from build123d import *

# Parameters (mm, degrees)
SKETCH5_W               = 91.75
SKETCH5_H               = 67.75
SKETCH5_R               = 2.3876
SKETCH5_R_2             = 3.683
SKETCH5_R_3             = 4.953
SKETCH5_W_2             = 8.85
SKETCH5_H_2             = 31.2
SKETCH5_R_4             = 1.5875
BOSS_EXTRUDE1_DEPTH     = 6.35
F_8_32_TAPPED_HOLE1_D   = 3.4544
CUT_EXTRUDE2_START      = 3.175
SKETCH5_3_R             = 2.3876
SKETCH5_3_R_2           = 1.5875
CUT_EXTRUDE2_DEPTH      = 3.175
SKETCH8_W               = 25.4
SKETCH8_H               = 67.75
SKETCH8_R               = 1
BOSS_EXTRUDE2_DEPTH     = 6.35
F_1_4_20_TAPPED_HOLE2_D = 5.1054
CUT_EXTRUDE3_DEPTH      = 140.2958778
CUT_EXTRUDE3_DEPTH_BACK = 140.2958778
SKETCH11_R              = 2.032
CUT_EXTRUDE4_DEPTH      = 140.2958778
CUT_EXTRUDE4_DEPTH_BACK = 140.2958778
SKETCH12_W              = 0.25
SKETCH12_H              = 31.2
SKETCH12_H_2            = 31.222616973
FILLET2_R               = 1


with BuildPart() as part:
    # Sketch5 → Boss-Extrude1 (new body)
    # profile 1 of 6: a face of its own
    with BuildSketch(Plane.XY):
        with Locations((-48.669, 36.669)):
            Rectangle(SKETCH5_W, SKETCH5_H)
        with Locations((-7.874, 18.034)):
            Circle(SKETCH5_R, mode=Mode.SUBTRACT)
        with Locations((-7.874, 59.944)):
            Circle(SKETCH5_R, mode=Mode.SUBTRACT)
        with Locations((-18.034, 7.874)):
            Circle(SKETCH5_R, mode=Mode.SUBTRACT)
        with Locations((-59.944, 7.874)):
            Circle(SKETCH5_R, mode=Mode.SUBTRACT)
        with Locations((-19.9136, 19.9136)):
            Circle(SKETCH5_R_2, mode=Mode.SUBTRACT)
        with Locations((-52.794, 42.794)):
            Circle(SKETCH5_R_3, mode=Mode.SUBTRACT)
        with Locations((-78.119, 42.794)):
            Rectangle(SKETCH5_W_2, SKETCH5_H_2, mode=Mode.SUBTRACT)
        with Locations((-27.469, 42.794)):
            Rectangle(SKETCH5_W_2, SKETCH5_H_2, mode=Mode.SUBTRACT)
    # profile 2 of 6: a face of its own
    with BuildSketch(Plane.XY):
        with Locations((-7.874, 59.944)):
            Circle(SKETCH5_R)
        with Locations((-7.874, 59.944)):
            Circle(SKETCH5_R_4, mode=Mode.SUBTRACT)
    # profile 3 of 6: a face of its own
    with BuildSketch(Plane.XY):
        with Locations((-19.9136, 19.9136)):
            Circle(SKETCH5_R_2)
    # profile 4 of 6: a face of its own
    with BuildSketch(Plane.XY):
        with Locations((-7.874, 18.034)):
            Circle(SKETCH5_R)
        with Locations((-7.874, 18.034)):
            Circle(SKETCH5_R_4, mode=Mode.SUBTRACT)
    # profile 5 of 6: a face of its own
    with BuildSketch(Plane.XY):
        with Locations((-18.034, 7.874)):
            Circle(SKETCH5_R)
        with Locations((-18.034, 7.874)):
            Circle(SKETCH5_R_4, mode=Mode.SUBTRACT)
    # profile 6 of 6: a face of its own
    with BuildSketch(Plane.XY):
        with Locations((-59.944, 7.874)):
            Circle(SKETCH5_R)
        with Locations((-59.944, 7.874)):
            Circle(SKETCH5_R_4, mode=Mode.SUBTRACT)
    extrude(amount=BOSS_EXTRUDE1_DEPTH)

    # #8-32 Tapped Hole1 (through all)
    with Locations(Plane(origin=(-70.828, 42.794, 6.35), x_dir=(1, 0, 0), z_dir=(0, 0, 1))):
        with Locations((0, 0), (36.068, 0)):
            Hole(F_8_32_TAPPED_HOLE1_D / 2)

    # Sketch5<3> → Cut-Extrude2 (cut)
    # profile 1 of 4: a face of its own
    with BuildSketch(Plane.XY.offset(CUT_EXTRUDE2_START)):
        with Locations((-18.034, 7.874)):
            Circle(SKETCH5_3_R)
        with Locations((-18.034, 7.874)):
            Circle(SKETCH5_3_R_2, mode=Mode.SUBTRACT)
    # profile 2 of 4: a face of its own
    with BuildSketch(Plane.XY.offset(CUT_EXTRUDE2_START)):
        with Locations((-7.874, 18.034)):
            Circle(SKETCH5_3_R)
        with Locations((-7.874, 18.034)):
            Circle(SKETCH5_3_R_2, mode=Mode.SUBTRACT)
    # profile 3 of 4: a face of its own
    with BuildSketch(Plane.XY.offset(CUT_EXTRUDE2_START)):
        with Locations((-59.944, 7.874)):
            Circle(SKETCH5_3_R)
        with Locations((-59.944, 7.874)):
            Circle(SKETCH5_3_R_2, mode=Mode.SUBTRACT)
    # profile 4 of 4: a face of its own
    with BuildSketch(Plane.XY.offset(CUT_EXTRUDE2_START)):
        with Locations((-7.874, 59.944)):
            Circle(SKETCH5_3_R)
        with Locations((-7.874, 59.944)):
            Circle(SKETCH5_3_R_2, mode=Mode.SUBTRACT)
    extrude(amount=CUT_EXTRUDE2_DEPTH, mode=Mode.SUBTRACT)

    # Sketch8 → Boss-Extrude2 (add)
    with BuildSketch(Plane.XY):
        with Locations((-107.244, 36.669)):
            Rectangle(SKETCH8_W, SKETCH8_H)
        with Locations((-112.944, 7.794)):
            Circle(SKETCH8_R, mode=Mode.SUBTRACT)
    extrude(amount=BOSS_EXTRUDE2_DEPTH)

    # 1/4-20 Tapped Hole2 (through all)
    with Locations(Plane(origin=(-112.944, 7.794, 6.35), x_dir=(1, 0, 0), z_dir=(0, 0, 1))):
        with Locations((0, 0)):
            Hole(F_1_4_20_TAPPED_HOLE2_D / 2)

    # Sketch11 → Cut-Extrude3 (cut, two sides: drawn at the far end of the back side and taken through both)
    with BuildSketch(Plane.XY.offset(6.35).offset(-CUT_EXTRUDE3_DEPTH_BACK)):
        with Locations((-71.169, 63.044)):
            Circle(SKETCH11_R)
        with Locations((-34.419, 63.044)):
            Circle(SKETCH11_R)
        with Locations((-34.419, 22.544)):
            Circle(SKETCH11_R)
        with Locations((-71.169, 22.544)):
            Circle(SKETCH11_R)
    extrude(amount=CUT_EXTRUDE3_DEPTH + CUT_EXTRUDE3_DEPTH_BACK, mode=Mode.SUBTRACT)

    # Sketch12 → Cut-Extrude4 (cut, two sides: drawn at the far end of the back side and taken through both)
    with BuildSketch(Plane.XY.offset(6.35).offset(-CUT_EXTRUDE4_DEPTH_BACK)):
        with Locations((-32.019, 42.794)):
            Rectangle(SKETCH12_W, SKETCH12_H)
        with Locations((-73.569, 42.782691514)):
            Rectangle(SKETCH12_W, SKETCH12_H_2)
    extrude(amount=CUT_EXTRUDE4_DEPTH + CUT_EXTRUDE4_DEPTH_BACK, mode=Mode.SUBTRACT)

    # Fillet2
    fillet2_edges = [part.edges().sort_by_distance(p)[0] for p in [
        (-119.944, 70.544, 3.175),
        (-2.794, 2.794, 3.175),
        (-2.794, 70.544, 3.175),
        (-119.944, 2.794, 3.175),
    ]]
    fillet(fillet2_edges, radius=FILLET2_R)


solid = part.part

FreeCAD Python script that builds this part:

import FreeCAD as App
import Part
import Sketcher
Q = App.Units.Quantity


def edges_at(feature, points):
    """Names of the edges that pass closest to the given points."""
    edges = feature.Shape.Edges
    near = lambda p: min(range(len(edges)), key=lambda i: edges[i].distToShape(Part.Vertex(*p))[0])
    return sorted({f"Edge{near(p) + 1}" for p in points})

doc = App.newDocument("Part")
body = doc.addObject("PartDesign::Body", "Body")

sketch1 = body.newObject("Sketcher::SketchObject", "Sketch")
sketch1.AttachmentSupport = (doc.getObject("XY_Plane"), [""])
sketch1.MapMode = "FlatFace"
sketch1.addGeometry(Part.LineSegment(App.Vector(-94.544, 70.544, 0), App.Vector(-94.544, 2.794, 0)), False)
sketch1.addGeometry(Part.LineSegment(App.Vector(-94.544, 2.794, 0), App.Vector(-2.794, 2.794, 0)), False)
sketch1.addGeometry(Part.LineSegment(App.Vector(-2.794, 2.794, 0), App.Vector(-2.794, 70.544, 0)), False)
sketch1.addGeometry(Part.LineSegment(App.Vector(-2.794, 70.544, 0), App.Vector(-94.544, 70.544, 0)), False)
sketch1.addGeometry(Part.LineSegment(App.Vector(-73.694, 27.194, 0), App.Vector(-82.544, 27.194, 0)), False)
sketch1.addGeometry(Part.LineSegment(App.Vector(-82.544, 27.194, 0), App.Vector(-82.544, 58.394, 0)), False)
sketch1.addGeometry(Part.LineSegment(App.Vector(-82.544, 58.394, 0), App.Vector(-73.694, 58.394, 0)), False)
sketch1.addGeometry(Part.LineSegment(App.Vector(-73.694, 58.394, 0), App.Vector(-73.694, 27.194, 0)), False)
sketch1.addGeometry(Part.Circle(App.Vector(-52.794, 42.794, 0), App.Vector(0, 0, 1), 4.953), False)
sketch1.addGeometry(Part.LineSegment(App.Vector(-23.044, 27.194, 0), App.Vector(-31.894, 27.194, 0)), False)
sketch1.addGeometry(Part.LineSegment(App.Vector(-31.894, 27.194, 0), App.Vector(-31.894, 58.394, 0)), False)
sketch1.addGeometry(Part.LineSegment(App.Vector(-31.894, 58.394, 0), App.Vector(-23.044, 58.394, 0)), False)
sketch1.addGeometry(Part.LineSegment(App.Vector(-23.044, 58.394, 0), App.Vector(-23.044, 27.194, 0)), False)
sketch1.addGeometry(Part.Circle(App.Vector(-59.944, 7.874, 0), App.Vector(0, 0, 1), 1.5875), False)
sketch1.addGeometry(Part.Circle(App.Vector(-18.034, 7.874, 0), App.Vector(0, 0, 1), 1.5875), False)
sketch1.addGeometry(Part.Circle(App.Vector(-7.874, 18.034, 0), App.Vector(0, 0, 1), 1.5875), False)
sketch1.addGeometry(Part.Circle(App.Vector(-7.874, 59.944, 0), App.Vector(0, 0, 1), 1.5875), False)
sketch1.addConstraint(Sketcher.Constraint("Coincident", 0, 2, 1, 1))
sketch1.addConstraint(Sketcher.Constraint("Coincident", 1, 2, 2, 1))
sketch1.addConstraint(Sketcher.Constraint("Coincident", 2, 2, 3, 1))
sketch1.addConstraint(Sketcher.Constraint("Coincident", 3, 2, 0, 1))
sketch1.addConstraint(Sketcher.Constraint("Coincident", 4, 2, 5, 1))
sketch1.addConstraint(Sketcher.Constraint("Coincident", 5, 2, 6, 1))
sketch1.addConstraint(Sketcher.Constraint("Coincident", 6, 2, 7, 1))
sketch1.addConstraint(Sketcher.Constraint("Coincident", 7, 2, 4, 1))
sketch1.addConstraint(Sketcher.Constraint("Coincident", 9, 2, 10, 1))
sketch1.addConstraint(Sketcher.Constraint("Coincident", 10, 2, 11, 1))
sketch1.addConstraint(Sketcher.Constraint("Coincident", 11, 2, 12, 1))
sketch1.addConstraint(Sketcher.Constraint("Coincident", 12, 2, 9, 1))
sketch1.addConstraint(Sketcher.Constraint("Vertical", 0))
sketch1.addConstraint(Sketcher.Constraint("Horizontal", 1))
sketch1.addConstraint(Sketcher.Constraint("Vertical", 2))
sketch1.addConstraint(Sketcher.Constraint("Horizontal", 3))
sketch1.addConstraint(Sketcher.Constraint("Horizontal", 4))
sketch1.addConstraint(Sketcher.Constraint("Vertical", 5))
sketch1.addConstraint(Sketcher.Constraint("Horizontal", 6))
sketch1.addConstraint(Sketcher.Constraint("Vertical", 7))
sketch1.addConstraint(Sketcher.Constraint("Horizontal", 9))
sketch1.addConstraint(Sketcher.Constraint("Vertical", 10))
sketch1.addConstraint(Sketcher.Constraint("Horizontal", 11))
sketch1.addConstraint(Sketcher.Constraint("Vertical", 12))
sketch1.addConstraint(Sketcher.Constraint("Equal", 13, 14))
sketch1.addConstraint(Sketcher.Constraint("Equal", 14, 15))
sketch1.addConstraint(Sketcher.Constraint("Equal", 15, 16))
sketch1.addConstraint(Sketcher.Constraint("Horizontal", 13, 3, 14, 3))
sketch1.addConstraint(Sketcher.Constraint("Horizontal", 7, 2, 9, 2))
sketch1.addConstraint(Sketcher.Constraint("Horizontal", 6, 2, 10, 2))
sketch1.addConstraint(Sketcher.Constraint("Vertical", 15, 3, 16, 3))
sketch1.addConstraint(Sketcher.Constraint("Equal", 6, 9))
sketch1.addConstraint(Sketcher.Constraint("Diameter", 8, Q("0.39 in")))
sketch1.addConstraint(Sketcher.Constraint("Diameter", 13, Q("0.125 in")))
sketch1.addConstraint(Sketcher.Constraint("DistanceX", 14, 3, 15, 3, Q("0.4 in")))
sketch1.addConstraint(Sketcher.Constraint("DistanceY", 14, 3, 15, 3, Q("0.4 in")))
sketch1.addConstraint(Sketcher.Constraint("DistanceY", 0, 2, 13, 3, Q("0.2 in")))
sketch1.addConstraint(Sketcher.Constraint("DistanceX", 14, 3, 1, 2, Q("0.6 in")))
sketch1.addConstraint(Sketcher.Constraint("DistanceX", 13, 3, -1, 1, Q("2.36 in")))
sketch1.addConstraint(Sketcher.Constraint("DistanceY", -1, 1, 13, 3, Q("0.31 in")))
sketch1.addConstraint(Sketcher.Constraint("DistanceX", 14, 3, -1, 1, Q("0.71 in")))
sketch1.addConstraint(Sketcher.Constraint("DistanceY", -1, 1, 16, 3, Q("2.36 in")))
sketch1.addConstraint(Sketcher.Constraint("DistanceX", 1, 1, 1, 2, Q("91.75 mm")))
sketch1.addConstraint(Sketcher.Constraint("DistanceX", 4, 2, 4, 1, Q("8.85 mm")))
sketch1.addConstraint(Sketcher.Constraint("DistanceY", 0, 2, 0, 1, Q("67.75 mm")))
sketch1.addConstraint(Sketcher.Constraint("DistanceY", 5, 1, 5, 2, Q("31.2 mm")))
sketch1.addConstraint(Sketcher.Constraint("DistanceX", 8, 3, -1, 1, Q("52.794 mm")))
sketch1.addConstraint(Sketcher.Constraint("DistanceY", -1, 1, 8, 3, Q("42.794 mm")))
sketch1.addConstraint(Sketcher.Constraint("DistanceX", 4, 2, -1, 1, Q("82.544 mm")))
sketch1.addConstraint(Sketcher.Constraint("DistanceY", -1, 1, 4, 2, Q("27.194 mm")))
sketch1.addConstraint(Sketcher.Constraint("DistanceX", 9, 2, -1, 1, Q("31.894 mm")))
pad1 = body.newObject("PartDesign::Pad", "Pad")
pad1.Profile = sketch1
pad1.Length = Q("0.25 in")

sketch2 = body.newObject("Sketcher::SketchObject", "Sketch001")
sketch2.AttachmentSupport = (doc.getObject("XY_Plane"), [""])
sketch2.MapMode = "FlatFace"
sketch2.AttachmentOffset = App.Placement(App.Vector(0, 0, 0.25 * 25.4), App.Rotation())
sketch2.addGeometry(Part.Circle(App.Vector(-70.828, 42.794, 0), App.Vector(0, 0, 1), 1.7272), False)
sketch2.addGeometry(Part.Circle(App.Vector(-34.76, 42.794, 0), App.Vector(0, 0, 1), 1.7272), False)
sketch2.addConstraint(Sketcher.Constraint("Equal", 0, 1))
sketch2.addConstraint(Sketcher.Constraint("Horizontal", 0, 3, 1, 3))
sketch2.addConstraint(Sketcher.Constraint("Diameter", 0, Q("0.136 in")))
sketch2.addConstraint(Sketcher.Constraint("DistanceX", 0, 3, 1, 3, Q("1.42 in")))
sketch2.addConstraint(Sketcher.Constraint("DistanceX", 0, 3, -1, 1, Q("70.828 mm")))
sketch2.addConstraint(Sketcher.Constraint("DistanceY", -1, 1, 0, 3, Q("42.794 mm")))
doc.recompute()
hole = body.newObject("PartDesign::Hole", "Hole")
hole.Profile = sketch2
hole.ThreadType = "None"
hole.Diameter = Q("0.136 in")
hole.DepthType = "ThroughAll"

sketch3 = body.newObject("Sketcher::SketchObject", "Sketch002")
sketch3.AttachmentSupport = (doc.getObject("XY_Plane"), [""])
sketch3.MapMode = "FlatFace"
sketch3.AttachmentOffset = App.Placement(App.Vector(0, 0, 0.125 * 25.4), App.Rotation())
sketch3.addGeometry(Part.Circle(App.Vector(-18.034, 7.874, 0), App.Vector(0, 0, 1), 2.3876), False)
sketch3.addGeometry(Part.Circle(App.Vector(-18.034, 7.874, 0), App.Vector(0, 0, 1), 1.5875), False)
sketch3.addGeometry(Part.Circle(App.Vector(-7.874, 18.034, 0), App.Vector(0, 0, 1), 2.3876), False)
sketch3.addGeometry(Part.Circle(App.Vector(-7.874, 18.034, 0), App.Vector(0, 0, 1), 1.5875), False)
sketch3.addGeometry(Part.Circle(App.Vector(-59.944, 7.874, 0), App.Vector(0, 0, 1), 2.3876), False)
sketch3.addGeometry(Part.Circle(App.Vector(-59.944, 7.874, 0), App.Vector(0, 0, 1), 1.5875), False)
sketch3.addGeometry(Part.Circle(App.Vector(-7.874, 59.944, 0), App.Vector(0, 0, 1), 2.3876), False)
sketch3.addGeometry(Part.Circle(App.Vector(-7.874, 59.944, 0), App.Vector(0, 0, 1), 1.5875), False)
sketch3.addConstraint(Sketcher.Constraint("Coincident", 1, 3, 0, 3))
sketch3.addConstraint(Sketcher.Constraint("Coincident", 3, 3, 2, 3))
sketch3.addConstraint(Sketcher.Constraint("Coincident", 5, 3, 4, 3))
sketch3.addConstraint(Sketcher.Constraint("Coincident", 7, 3, 6, 3))
sketch3.addConstraint(Sketcher.Constraint("Equal", 0, 2))
sketch3.addConstraint(Sketcher.Constraint("Equal", 1, 3))
sketch3.addConstraint(Sketcher.Constraint("Equal", 2, 4))
sketch3.addConstraint(Sketcher.Constraint("Equal", 3, 5))
sketch3.addConstraint(Sketcher.Constraint("Equal", 4, 6))
sketch3.addConstraint(Sketcher.Constraint("Equal", 5, 7))
sketch3.addConstraint(Sketcher.Constraint("Horizontal", 1, 3, 4, 3))
sketch3.addConstraint(Sketcher.Constraint("Vertical", 3, 3, 6, 3))
sketch3.addConstraint(Sketcher.Constraint("Diameter", 0, Q("0.188 in")))
sketch3.addConstraint(Sketcher.Constraint("Diameter", 1, Q("0.125 in")))
sketch3.addConstraint(Sketcher.Constraint("DistanceX", 0, 3, 2, 3, Q("0.4 in")))
sketch3.addConstraint(Sketcher.Constraint("DistanceY", 0, 3, 2, 3, Q("0.4 in")))
sketch3.addConstraint(Sketcher.Constraint("DistanceX", 0, 3, -1, 1, Q("0.71 in")))
sketch3.addConstraint(Sketcher.Constraint("DistanceY", -1, 1, 0, 3, Q("0.31 in")))
sketch3.addConstraint(Sketcher.Constraint("DistanceX", 4, 3, -1, 1, Q("2.36 in")))
sketch3.addConstraint(Sketcher.Constraint("DistanceY", -1, 1, 6, 3, Q("2.36 in")))
pocket1 = body.newObject("PartDesign::Pocket", "Pocket")
pocket1.Profile = sketch3
pocket1.Length = Q("0.125 in")
pocket1.Reversed = True

sketch4 = body.newObject("Sketcher::SketchObject", "Sketch003")
sketch4.AttachmentSupport = (doc.getObject("XY_Plane"), [""])
sketch4.MapMode = "FlatFace"
sketch4.addGeometry(Part.LineSegment(App.Vector(-119.944, 70.544, 0), App.Vector(-119.944, 2.794, 0)), False)
sketch4.addGeometry(Part.LineSegment(App.Vector(-119.944, 2.794, 0), App.Vector(-94.544, 2.794, 0)), False)
sketch4.addGeometry(Part.LineSegment(App.Vector(-94.544, 2.794, 0), App.Vector(-94.544, 70.544, 0)), False)
sketch4.addGeometry(Part.LineSegment(App.Vector(-94.544, 70.544, 0), App.Vector(-119.944, 70.544, 0)), False)
sketch4.addGeometry(Part.Circle(App.Vector(-112.944, 7.794, 0), App.Vector(0, 0, 1), 1), False)
sketch4.addConstraint(Sketcher.Constraint("Coincident", 0, 2, 1, 1))
sketch4.addConstraint(Sketcher.Constraint("Coincident", 1, 2, 2, 1))
sketch4.addConstraint(Sketcher.Constraint("Coincident", 2, 2, 3, 1))
sketch4.addConstraint(Sketcher.Constraint("Coincident", 3, 2, 0, 1))
sketch4.addConstraint(Sketcher.Constraint("Vertical", 0))
sketch4.addConstraint(Sketcher.Constraint("Horizontal", 1))
sketch4.addConstraint(Sketcher.Constraint("Vertical", 2))
sketch4.addConstraint(Sketcher.Constraint("Horizontal", 3))
sketch4.addConstraint(Sketcher.Constraint("DistanceX", 1, 1, 1, 2, Q("1 in")))
sketch4.addConstraint(Sketcher.Constraint("Diameter", 4, Q("2 mm")))
sketch4.addConstraint(Sketcher.Constraint("DistanceY", -1, 1, 0, 2, Q("0.11 in")))
sketch4.addConstraint(Sketcher.Constraint("DistanceY", 0, 2, 0, 1, Q("67.75 mm")))
sketch4.addConstraint(Sketcher.Constraint("DistanceX", 4, 3, -1, 1, Q("112.944 mm")))
sketch4.addConstraint(Sketcher.Constraint("DistanceY", -1, 1, 4, 3, Q("7.794 mm")))
sketch4.addConstraint(Sketcher.Constraint("DistanceX", 0, 2, -1, 1, Q("119.944 mm")))
pad2 = body.newObject("PartDesign::Pad", "Pad001")
pad2.Profile = sketch4
pad2.Length = Q("0.25 in")

sketch5 = body.newObject("Sketcher::SketchObject", "Sketch004")
sketch5.AttachmentSupport = (doc.getObject("XY_Plane"), [""])
sketch5.MapMode = "FlatFace"
sketch5.AttachmentOffset = App.Placement(App.Vector(0, 0, 0.25 * 25.4), App.Rotation())
sketch5.addGeometry(Part.Circle(App.Vector(-112.944, 7.794, 0), App.Vector(0, 0, 1), 2.5527), False)
sketch5.addConstraint(Sketcher.Constraint("Diameter", 0, Q("0.201 in")))
sketch5.addConstraint(Sketcher.Constraint("DistanceX", 0, 3, -1, 1, Q("112.944 mm")))
sketch5.addConstraint(Sketcher.Constraint("DistanceY", -1, 1, 0, 3, Q("7.794 mm")))
doc.recompute()
hole2 = body.newObject("PartDesign::Hole", "Hole001")
hole2.Profile = sketch5
hole2.ThreadType = "None"
hole2.Diameter = Q("0.201 in")
hole2.DepthType = "ThroughAll"

sketch6 = body.newObject("Sketcher::SketchObject", "Sketch005")
sketch6.AttachmentSupport = (doc.getObject("XY_Plane"), [""])
sketch6.MapMode = "FlatFace"
sketch6.AttachmentOffset = App.Placement(App.Vector(0, 0, 0.25 * 25.4), App.Rotation())
sketch6.addGeometry(Part.Circle(App.Vector(-71.169, 63.044, 0), App.Vector(0, 0, 1), 2.032), False)
sketch6.addGeometry(Part.Circle(App.Vector(-34.419, 63.044, 0), App.Vector(0, 0, 1), 2.032), False)
sketch6.addGeometry(Part.Circle(App.Vector(-34.419, 22.544, 0), App.Vector(0, 0, 1), 2.032), False)
sketch6.addGeometry(Part.Circle(App.Vector(-71.169, 22.544, 0), App.Vector(0, 0, 1), 2.032), False)
sketch6.addConstraint(Sketcher.Constraint("Equal", 0, 1))
sketch6.addConstraint(Sketcher.Constraint("Equal", 1, 2))
sketch6.addConstraint(Sketcher.Constraint("Equal", 2, 3))
sketch6.addConstraint(Sketcher.Constraint("Horizontal", 0, 3, 1, 3))
sketch6.addConstraint(Sketcher.Constraint("Horizontal", 2, 3, 3, 3))
sketch6.addConstraint(Sketcher.Constraint("Vertical", 1, 3, 2, 3))
sketch6.addConstraint(Sketcher.Constraint("Vertical", 0, 3, 3, 3))
sketch6.addConstraint(Sketcher.Constraint("Diameter", 0, Q("0.16 in")))
sketch6.addConstraint(Sketcher.Constraint("DistanceX", 0, 3, -1, 1, Q("71.169 mm")))
sketch6.addConstraint(Sketcher.Constraint("DistanceY", -1, 1, 0, 3, Q("63.044 mm")))
sketch6.addConstraint(Sketcher.Constraint("DistanceX", 1, 3, -1, 1, Q("34.419 mm")))
sketch6.addConstraint(Sketcher.Constraint("DistanceY", -1, 1, 2, 3, Q("22.544 mm")))
pocket2 = body.newObject("PartDesign::Pocket", "Pocket001")
pocket2.Profile = sketch6
pocket2.Type = "ThroughAll"
pocket2.Midplane = True

sketch7 = body.newObject("Sketcher::SketchObject", "Sketch006")
sketch7.AttachmentSupport = (doc.getObject("XY_Plane"), [""])
sketch7.MapMode = "FlatFace"
sketch7.AttachmentOffset = App.Placement(App.Vector(0, 0, 0.25 * 25.4), App.Rotation())
sketch7.addGeometry(Part.LineSegment(App.Vector(-32.144, 58.394, 0), App.Vector(-32.144, 27.194, 0)), False)
sketch7.addGeometry(Part.LineSegment(App.Vector(-32.144, 27.194, 0), App.Vector(-31.894, 27.194, 0)), False)
sketch7.addGeometry(Part.LineSegment(App.Vector(-31.894, 27.194, 0), App.Vector(-31.894, 58.394, 0)), False)
sketch7.addGeometry(Part.LineSegment(App.Vector(-31.894, 58.394, 0), App.Vector(-32.144, 58.394, 0)), False)
sketch7.addGeometry(Part.LineSegment(App.Vector(-73.694, 58.394, 0), App.Vector(-73.694, 27.171383, 0)), False)
sketch7.addGeometry(Part.LineSegment(App.Vector(-73.694, 27.171383, 0), App.Vector(-73.444, 27.171383, 0)), False)
sketch7.addGeometry(Part.LineSegment(App.Vector(-73.444, 27.171383, 0), App.Vector(-73.444, 58.394, 0)), False)
sketch7.addGeometry(Part.LineSegment(App.Vector(-73.444, 58.394, 0), App.Vector(-73.694, 58.394, 0)), False)
sketch7.addConstraint(Sketcher.Constraint("Coincident", 0, 2, 1, 1))
sketch7.addConstraint(Sketcher.Constraint("Coincident", 1, 2, 2, 1))
sketch7.addConstraint(Sketcher.Constraint("Coincident", 2, 2, 3, 1))
sketch7.addConstraint(Sketcher.Constraint("Coincident", 3, 2, 0, 1))
sketch7.addConstraint(Sketcher.Constraint("Coincident", 4, 2, 5, 1))
sketch7.addConstraint(Sketcher.Constraint("Coincident", 5, 2, 6, 1))
sketch7.addConstraint(Sketcher.Constraint("Coincident", 6, 2, 7, 1))
sketch7.addConstraint(Sketcher.Constraint("Coincident", 7, 2, 4, 1))
sketch7.addConstraint(Sketcher.Constraint("Vertical", 0))
sketch7.addConstraint(Sketcher.Constraint("Horizontal", 1))
sketch7.addConstraint(Sketcher.Constraint("Vertical", 2))
sketch7.addConstraint(Sketcher.Constraint("Horizontal", 3))
sketch7.addConstraint(Sketcher.Constraint("Vertical", 4))
sketch7.addConstraint(Sketcher.Constraint("Horizontal", 5))
sketch7.addConstraint(Sketcher.Constraint("Vertical", 6))
sketch7.addConstraint(Sketcher.Constraint("Horizontal", 7))
sketch7.addConstraint(Sketcher.Constraint("Horizontal", 3, 2, 6, 2))
sketch7.addConstraint(Sketcher.Constraint("Equal", 3, 5))
sketch7.addConstraint(Sketcher.Constraint("DistanceX", 1, 1, 1, 2, Q("0.25 mm")))
sketch7.addConstraint(Sketcher.Constraint("DistanceY", 0, 2, 0, 1, Q("31.2 mm")))
sketch7.addConstraint(Sketcher.Constraint("DistanceX", 0, 2, -1, 1, Q("32.144 mm")))
sketch7.addConstraint(Sketcher.Constraint("DistanceY", -1, 1, 0, 2, Q("27.194 mm")))
sketch7.addConstraint(Sketcher.Constraint("DistanceX", 4, 2, -1, 1, Q("73.694 mm")))
sketch7.addConstraint(Sketcher.Constraint("DistanceY", 4, 2, 4, 1, Q("31.222617 mm")))
pocket3 = body.newObject("PartDesign::Pocket", "Pocket002")
pocket3.Profile = sketch7
pocket3.Type = "ThroughAll"
pocket3.Midplane = True
doc.recompute()

fillet = body.newObject("PartDesign::Fillet", "Fillet")
fillet.Base = (pocket3, edges_at(pocket3, [
    (-119.944, 70.544, 3.175),
    (-2.794, 2.794, 3.175),
    (-2.794, 70.544, 3.175),
    (-119.944, 2.794, 3.175),
]))
fillet.Radius = 1

doc.recompute()
